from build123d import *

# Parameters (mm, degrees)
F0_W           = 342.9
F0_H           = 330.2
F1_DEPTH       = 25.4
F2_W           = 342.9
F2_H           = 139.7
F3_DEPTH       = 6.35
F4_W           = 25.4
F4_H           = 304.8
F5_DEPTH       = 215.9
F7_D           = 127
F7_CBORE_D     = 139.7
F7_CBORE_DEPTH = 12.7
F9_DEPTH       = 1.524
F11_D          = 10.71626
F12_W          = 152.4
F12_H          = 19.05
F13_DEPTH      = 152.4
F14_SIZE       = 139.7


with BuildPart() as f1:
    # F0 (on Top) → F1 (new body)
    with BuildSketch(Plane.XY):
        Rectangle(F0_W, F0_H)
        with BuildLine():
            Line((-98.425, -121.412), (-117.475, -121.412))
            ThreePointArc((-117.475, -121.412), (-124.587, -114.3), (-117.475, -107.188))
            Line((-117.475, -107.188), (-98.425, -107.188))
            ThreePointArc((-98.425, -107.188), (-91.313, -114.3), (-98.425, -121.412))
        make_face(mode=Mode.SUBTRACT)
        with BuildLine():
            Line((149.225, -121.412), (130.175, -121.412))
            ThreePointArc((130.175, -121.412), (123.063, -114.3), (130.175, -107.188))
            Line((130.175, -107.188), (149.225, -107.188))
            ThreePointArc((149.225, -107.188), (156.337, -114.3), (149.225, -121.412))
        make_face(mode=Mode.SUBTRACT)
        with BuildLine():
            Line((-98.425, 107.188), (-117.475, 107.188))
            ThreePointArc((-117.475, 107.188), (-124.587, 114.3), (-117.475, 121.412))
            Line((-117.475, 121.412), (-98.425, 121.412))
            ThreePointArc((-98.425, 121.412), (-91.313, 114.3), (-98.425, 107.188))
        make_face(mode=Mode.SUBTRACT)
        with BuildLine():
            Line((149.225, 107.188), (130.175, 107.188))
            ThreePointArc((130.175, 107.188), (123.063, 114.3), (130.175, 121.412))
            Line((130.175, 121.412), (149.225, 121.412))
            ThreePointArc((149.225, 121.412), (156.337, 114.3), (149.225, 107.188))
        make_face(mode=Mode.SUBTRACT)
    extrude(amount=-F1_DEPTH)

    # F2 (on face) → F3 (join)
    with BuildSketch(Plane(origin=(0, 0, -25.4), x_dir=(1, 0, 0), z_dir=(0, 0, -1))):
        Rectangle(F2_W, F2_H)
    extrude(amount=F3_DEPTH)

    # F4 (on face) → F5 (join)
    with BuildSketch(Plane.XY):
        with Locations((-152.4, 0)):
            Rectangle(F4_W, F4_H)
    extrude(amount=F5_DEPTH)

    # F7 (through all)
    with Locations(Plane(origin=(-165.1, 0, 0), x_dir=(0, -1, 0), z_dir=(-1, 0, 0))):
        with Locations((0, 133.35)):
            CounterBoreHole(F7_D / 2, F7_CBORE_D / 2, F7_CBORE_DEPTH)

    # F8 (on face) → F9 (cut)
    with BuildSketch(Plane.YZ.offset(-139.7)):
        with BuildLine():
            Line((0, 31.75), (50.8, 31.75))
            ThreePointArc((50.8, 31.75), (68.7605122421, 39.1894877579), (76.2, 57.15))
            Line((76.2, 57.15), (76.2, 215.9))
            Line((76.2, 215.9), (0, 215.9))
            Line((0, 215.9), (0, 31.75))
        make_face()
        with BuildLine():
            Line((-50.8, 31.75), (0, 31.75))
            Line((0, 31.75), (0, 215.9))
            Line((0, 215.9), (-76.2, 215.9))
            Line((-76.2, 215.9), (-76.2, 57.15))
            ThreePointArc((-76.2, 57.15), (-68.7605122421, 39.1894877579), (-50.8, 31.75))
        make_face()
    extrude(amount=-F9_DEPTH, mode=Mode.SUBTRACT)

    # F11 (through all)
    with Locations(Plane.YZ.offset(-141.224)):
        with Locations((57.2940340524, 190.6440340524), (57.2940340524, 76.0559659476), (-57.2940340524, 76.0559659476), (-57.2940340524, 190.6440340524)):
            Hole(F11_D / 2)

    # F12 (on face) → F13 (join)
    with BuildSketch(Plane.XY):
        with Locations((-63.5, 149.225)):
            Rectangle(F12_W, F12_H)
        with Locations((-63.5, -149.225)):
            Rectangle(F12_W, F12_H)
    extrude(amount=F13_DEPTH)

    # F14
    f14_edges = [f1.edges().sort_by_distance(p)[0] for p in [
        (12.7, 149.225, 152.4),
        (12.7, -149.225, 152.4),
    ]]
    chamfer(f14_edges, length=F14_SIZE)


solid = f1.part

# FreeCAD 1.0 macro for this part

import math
import FreeCAD as App
import Part
import Sketcher
Q = App.Units.Quantity


def edges_at(feature, points):
    """Names of the edges that pass closest to the given points."""
    edges = feature.Shape.Edges
    near = lambda p: min(range(len(edges)), key=lambda i: edges[i].distToShape(Part.Vertex(*p))[0])
    return sorted({f"Edge{near(p) + 1}" for p in points})


def add_polygon(sketch, points):
    """Adds a closed chain of lines whose ends are joined by coincident constraints."""
    first, n = sketch.GeometryCount, len(points)
    for a, b in zip(points, points[1:] + points[:1]):
        sketch.addGeometry(Part.LineSegment(App.Vector(*a, 0), App.Vector(*b, 0)), False)
    for i in range(n):
        sketch.addConstraint(Sketcher.Constraint("Coincident", first + i, 2, first + (i + 1) % n, 1))

doc = App.newDocument("Part")
body = doc.addObject("PartDesign::Body", "Body")

# Sketch on XY plane
sketch1 = body.newObject("Sketcher::SketchObject", "Sketch")
sketch1.AttachmentSupport = (doc.getObject("XY_Plane"), [""])
sketch1.MapMode = "FlatFace"
add_polygon(sketch1, [(-171, 165), (-171, -165), (171, -165), (171, 165)])  # lines 0-3
sketch1.addGeometry(Part.ArcOfCircle(Part.Circle(App.Vector(-98, -114, 0), App.Vector(0, 0, 1), 7), math.radians(-90), math.radians(90)), False)  # 4
sketch1.addGeometry(Part.LineSegment(App.Vector(-98, -121, 0), App.Vector(-117, -121, 0)), False)  # 5
sketch1.addGeometry(Part.ArcOfCircle(Part.Circle(App.Vector(-117, -114, 0), App.Vector(0, 0, 1), 7), math.radians(90), math.radians(270)), False)  # 6
sketch1.addGeometry(Part.LineSegment(App.Vector(-117, -107, 0), App.Vector(-98, -107, 0)), False)  # 7
sketch1.addGeometry(Part.ArcOfCircle(Part.Circle(App.Vector(149, -114, 0), App.Vector(0, 0, 1), 7), math.radians(-90), math.radians(90)), False)  # 8
sketch1.addGeometry(Part.LineSegment(App.Vector(149, -121, 0), App.Vector(130, -121, 0)), False)  # 9
sketch1.addGeometry(Part.ArcOfCircle(Part.Circle(App.Vector(130, -114, 0), App.Vector(0, 0, 1), 7), math.radians(90), math.radians(270)), False)  # 10
sketch1.addGeometry(Part.LineSegment(App.Vector(130, -107, 0), App.Vector(149, -107, 0)), False)  # 11
sketch1.addGeometry(Part.ArcOfCircle(Part.Circle(App.Vector(-98, 114, 0), App.Vector(0, 0, 1), 7), math.radians(-90), math.radians(90)), False)  # 12
sketch1.addGeometry(Part.LineSegment(App.Vector(-98, 107, 0), App.Vector(-117, 107, 0)), False)  # 13
sketch1.addGeometry(Part.ArcOfCircle(Part.Circle(App.Vector(-117, 114, 0), App.Vector(0, 0, 1), 7), math.radians(90), math.radians(270)), False)  # 14
sketch1.addGeometry(Part.LineSegment(App.Vector(-117, 121, 0), App.Vector(-98, 121, 0)), False)  # 15
sketch1.addGeometry(Part.ArcOfCircle(Part.Circle(App.Vector(149, 114, 0), App.Vector(0, 0, 1), 7), math.radians(-90), math.radians(90)), False)  # 16
sketch1.addGeometry(Part.LineSegment(App.Vector(149, 107, 0), App.Vector(130, 107, 0)), False)  # 17
sketch1.addGeometry(Part.ArcOfCircle(Part.Circle(App.Vector(130, 114, 0), App.Vector(0, 0, 1), 7), math.radians(90), math.radians(270)), False)  # 18
sketch1.addGeometry(Part.LineSegment(App.Vector(130, 121, 0), App.Vector(149, 121, 0)), False)  # 19
sketch1.addConstraint(Sketcher.Constraint("Tangent", 4, 1, 5, 1))
sketch1.addConstraint(Sketcher.Constraint("Tangent", 5, 2, 6, 2))
sketch1.addConstraint(Sketcher.Constraint("Tangent", 6, 1, 7, 1))
sketch1.addConstraint(Sketcher.Constraint("Tangent", 7, 2, 4, 2))
sketch1.addConstraint(Sketcher.Constraint("Tangent", 8, 1, 9, 1))
sketch1.addConstraint(Sketcher.Constraint("Tangent", 9, 2, 10, 2))
sketch1.addConstraint(Sketcher.Constraint("Tangent", 10, 1, 11, 1))
sketch1.addConstraint(Sketcher.Constraint("Tangent", 11, 2, 8, 2))
sketch1.addConstraint(Sketcher.Constraint("Tangent", 12, 1, 13, 1))
sketch1.addConstraint(Sketcher.Constraint("Tangent", 13, 2, 14, 2))
sketch1.addConstraint(Sketcher.Constraint("Tangent", 14, 1, 15, 1))
sketch1.addConstraint(Sketcher.Constraint("Tangent", 15, 2, 12, 2))
sketch1.addConstraint(Sketcher.Constraint("Tangent", 16, 1, 17, 1))
sketch1.addConstraint(Sketcher.Constraint("Tangent", 17, 2, 18, 2))
sketch1.addConstraint(Sketcher.Constraint("Tangent", 18, 1, 19, 1))
sketch1.addConstraint(Sketcher.Constraint("Tangent", 19, 2, 16, 2))
sketch1.addConstraint(Sketcher.Constraint("Vertical", 0))
sketch1.addConstraint(Sketcher.Constraint("Horizontal", 1))
sketch1.addConstraint(Sketcher.Constraint("Vertical", 2))
sketch1.addConstraint(Sketcher.Constraint("Horizontal", 3))
sketch1.addConstraint(Sketcher.Constraint("Horizontal", 5))
sketch1.addConstraint(Sketcher.Constraint("Horizontal", 7))
sketch1.addConstraint(Sketcher.Constraint("Horizontal", 9))
sketch1.addConstraint(Sketcher.Constraint("Horizontal", 11))
sketch1.addConstraint(Sketcher.Constraint("Horizontal", 13))
sketch1.addConstraint(Sketcher.Constraint("Horizontal", 15))
sketch1.addConstraint(Sketcher.Constraint("Horizontal", 17))
sketch1.addConstraint(Sketcher.Constraint("Horizontal", 19))
sketch1.addConstraint(Sketcher.Constraint("Equal", 6, 8))
sketch1.addConstraint(Sketcher.Constraint("Equal", 10, 12))
sketch1.addConstraint(Sketcher.Constraint("Equal", 14, 16))
sketch1.addConstraint(Sketcher.Constraint("Symmetric", 0, 2, 2, 2, -1, 1))
sketch1.addConstraint(Sketcher.Constraint("Symmetric", 4, 3, 12, 3, -1))
sketch1.addConstraint(Sketcher.Constraint("Symmetric", 8, 3, 16, 3, -1))
sketch1.addConstraint(Sketcher.Constraint("Horizontal", 6, 3, 8, 3))
sketch1.addConstraint(Sketcher.Constraint("Vertical", 6, 3, 14, 3))
sketch1.addConstraint(Sketcher.Constraint("Vertical", 10, 3, 18, 3))
sketch1.addConstraint(Sketcher.Constraint("Equal", 7, 9))
sketch1.addConstraint(Sketcher.Constraint("DistanceY", 0, 2, 0, 1, Q("13 in")))
sketch1.addConstraint(Sketcher.Constraint("Radius", 4, Q("0.28 in")))
sketch1.addConstraint(Sketcher.Constraint("DistanceX", 1, 1, 1, 2, Q("13.5 in")))
sketch1.addConstraint(Sketcher.Constraint("DistanceX", 4, 3, 10, 3, Q("9 in")))
sketch1.addConstraint(Sketcher.Constraint("DistanceY", 4, 3, 12, 3, Q("9 in")))
sketch1.addConstraint(Sketcher.Constraint("DistanceX", 5, 2, 5, 1, Q("0.75 in")))
sketch1.addConstraint(Sketcher.Constraint("DistanceX", 4, 3, -1, 1, Q("3.875 in")))
pad1 = body.newObject("PartDesign::Pad", "Pad")
pad1.Profile = sketch1
pad1.Length = Q("1 in")
pad1.Reversed = True

# Sketch on XY plane
sketch2 = body.newObject("Sketcher::SketchObject", "Sketch001")
sketch2.AttachmentSupport = (doc.getObject("XY_Plane"), [""])
sketch2.MapMode = "FlatFace"
sketch2.AttachmentOffset = App.Placement(App.Vector(0, 0, -1 * 25.4), App.Rotation())
add_polygon(sketch2, [(-171, -70), (-171, 70), (171, 70), (171, -70)])  # lines 0-3
sketch2.addConstraint(Sketcher.Constraint("Vertical", 0))
sketch2.addConstraint(Sketcher.Constraint("Horizontal", 1))
sketch2.addConstraint(Sketcher.Constraint("Vertical", 2))
sketch2.addConstraint(Sketcher.Constraint("Horizontal", 3))
sketch2.addConstraint(Sketcher.Constraint("Symmetric", 0, 2, 2, 2, -1, 1))
sketch2.addConstraint(Sketcher.Constraint("DistanceX", 1, 1, 1, 2, Q("13.5 in")))
sketch2.addConstraint(Sketcher.Constraint("DistanceY", 0, 1, 0, 2, Q("5.5 in")))
pad2 = body.newObject("PartDesign::Pad", "Pad001")
pad2.Profile = sketch2
pad2.Length = Q("0.25 in")
pad2.Reversed = True

# Sketch on XY plane
sketch3 = body.newObject("Sketcher::SketchObject", "Sketch002")
sketch3.AttachmentSupport = (doc.getObject("XY_Plane"), [""])
sketch3.MapMode = "FlatFace"
add_polygon(sketch3, [(-165, 152), (-165, -152), (-140, -152), (-140, 152)])  # lines 0-3
sketch3.addConstraint(Sketcher.Constraint("Vertical", 0))
sketch3.addConstraint(Sketcher.Constraint("Horizontal", 1))
sketch3.addConstraint(Sketcher.Constraint("Vertical", 2))
sketch3.addConstraint(Sketcher.Constraint("Horizontal", 3))
sketch3.addConstraint(Sketcher.Constraint("DistanceX", 1, 1, 1, 2, Q("1 in")))
sketch3.addConstraint(Sketcher.Constraint("DistanceY", 0, 2, 0, 1, Q("12 in")))
sketch3.addConstraint(Sketcher.Constraint("DistanceY", 0, 2, -1, 1, Q("6 in")))
sketch3.addConstraint(Sketcher.Constraint("DistanceX", 0, 2, -1, 1, Q("6.5 in")))
pad3 = body.newObject("PartDesign::Pad", "Pad002")
pad3.Profile = sketch3
pad3.Length = Q("8.5 in")

# Sketch on YZ plane
sketch4 = body.newObject("Sketcher::SketchObject", "Sketch003")
sketch4.AttachmentSupport = (doc.getObject("YZ_Plane"), [""])
sketch4.MapMode = "FlatFace"
sketch4.AttachmentOffset = App.Placement(App.Vector(0, 0, -6.5 * 25.4), App.Rotation())
sketch4.addGeometry(Part.Circle(App.Vector(0, 133, 0), App.Vector(0, 0, 1), 64), False)
sketch4.addConstraint(Sketcher.Constraint("PointOnObject", 0, 3, -2))
sketch4.addConstraint(Sketcher.Constraint("Diameter", 0, Q("5 in")))
sketch4.addConstraint(Sketcher.Constraint("DistanceY", -1, 1, 0, 3, Q("5.25 in")))
doc.recompute()
hole = body.newObject("PartDesign::Hole", "Hole")
hole.Profile = sketch4
hole.ThreadType = "None"
hole.Diameter = Q("5 in")
hole.DepthType = "ThroughAll"
hole.HoleCutType = "Counterbore"
hole.HoleCutDiameter = Q("5.5 in")
hole.HoleCutDepth = Q("0.5 in")
hole.Reversed = True

# Sketch on YZ plane
sketch5 = body.newObject("Sketcher::SketchObject", "Sketch004")
sketch5.AttachmentSupport = (doc.getObject("YZ_Plane"), [""])
sketch5.MapMode = "FlatFace"
sketch5.AttachmentOffset = App.Placement(App.Vector(0, 0, -5.5 * 25.4), App.Rotation())
sketch5.addGeometry(Part.ArcOfCircle(Part.Circle(App.Vector(51, 57, 0), App.Vector(0, 0, 1), 25), math.radians(-90), math.radians(0)), False)
sketch5.addGeometry(Part.LineSegment(App.Vector(76, 57, 0), App.Vector(76, 216, 0)), False)
sketch5.addGeometry(Part.LineSegment(App.Vector(76, 216, 0), App.Vector(-76, 216, 0)), False)
sketch5.addGeometry(Part.LineSegment(App.Vector(-76, 216, 0), App.Vector(-76, 57, 0)), False)
sketch5.addGeometry(Part.ArcOfCircle(Part.Circle(App.Vector(-51, 57, 0), App.Vector(0, 0, 1), 25), math.radians(180), math.radians(270)), False)
sketch5.addGeometry(Part.LineSegment(App.Vector(-51, 32, 0), App.Vector(51, 32, 0)), False)
sketch5.addConstraint(Sketcher.Constraint("Tangent", 0, 2, 1, 1))
sketch5.addConstraint(Sketcher.Constraint("Coincident", 1, 2, 2, 1))
sketch5.addConstraint(Sketcher.Constraint("Coincident", 2, 2, 3, 1))
sketch5.addConstraint(Sketcher.Constraint("Tangent", 3, 2, 4, 1))
sketch5.addConstraint(Sketcher.Constraint("Tangent", 4, 2, 5, 1))
sketch5.addConstraint(Sketcher.Constraint("Tangent", 5, 2, 0, 1))
sketch5.addConstraint(Sketcher.Constraint("Vertical", 1))
sketch5.addConstraint(Sketcher.Constraint("Horizontal", 2))
sketch5.addConstraint(Sketcher.Constraint("Vertical", 3))
sketch5.addConstraint(Sketcher.Constraint("Horizontal", 5))
sketch5.addConstraint(Sketcher.Constraint("Equal", 0, 4))
sketch5.addConstraint(Sketcher.Constraint("Radius", 0, Q("1 in")))
sketch5.addConstraint(Sketcher.Constraint("DistanceX", 2, 2, 2, 1, Q("6 in")))
sketch5.addConstraint(Sketcher.Constraint("DistanceX", -1, 1, 0, 3, Q("2 in")))
sketch5.addConstraint(Sketcher.Constraint("DistanceY", 1, 1, 1, 2, Q("6.25 in")))
sketch5.addConstraint(Sketcher.Constraint("DistanceY", -1, 1, 1, 2, Q("8.5 in")))
pocket1 = body.newObject("PartDesign::Pocket", "Pocket")
pocket1.Profile = sketch5
pocket1.Length = Q("0.06 in")

# Sketch on YZ plane
sketch6 = body.newObject("Sketcher::SketchObject", "Sketch005")
sketch6.AttachmentSupport = (doc.getObject("YZ_Plane"), [""])
sketch6.MapMode = "FlatFace"
sketch6.AttachmentOffset = App.Placement(App.Vector(0, 0, -5.56 * 25.4), App.Rotation())
sketch6.addGeometry(Part.Circle(App.Vector(57, 191, 0), App.Vector(0, 0, 1), 5), False)
sketch6.addGeometry(Part.Circle(App.Vector(57, 76, 0), App.Vector(0, 0, 1), 5), False)
sketch6.addGeometry(Part.Circle(App.Vector(-57, 76, 0), App.Vector(0, 0, 1), 5), False)
sketch6.addGeometry(Part.Circle(App.Vector(-57, 191, 0), App.Vector(0, 0, 1), 5), False)
sketch6.addConstraint(Sketcher.Constraint("Equal", 0, 1))
sketch6.addConstraint(Sketcher.Constraint("Equal", 1, 2))
sketch6.addConstraint(Sketcher.Constraint("Equal", 2, 3))
sketch6.addConstraint(Sketcher.Constraint("Symmetric", 1, 3, 2, 3, -2))
sketch6.addConstraint(Sketcher.Constraint("Symmetric", 0, 3, 3, 3, -2))
sketch6.addConstraint(Sketcher.Constraint("Vertical", 0, 3, 1, 3))
sketch6.addConstraint(Sketcher.Constraint("Diameter", 0, Q("0.4219 in")))
sketch6.addConstraint(Sketcher.Constraint("DistanceY", 1, 3, 0, 3, Q("114.588068 mm")))
sketch6.addConstraint(Sketcher.Constraint("DistanceX", 2, 3, 1, 3, Q("114.588068 mm")))
sketch6.addConstraint(Sketcher.Constraint("DistanceY", -1, 1, 0, 3, Q("190.644034 mm")))
doc.recompute()
hole2 = body.newObject("PartDesign::Hole", "Hole001")
hole2.Profile = sketch6
hole2.ThreadType = "None"
hole2.Diameter = Q("0.4219 in")
hole2.DepthType = "ThroughAll"

# Sketch on XY plane
sketch7 = body.newObject("Sketcher::SketchObject", "Sketch006")
sketch7.AttachmentSupport = (doc.getObject("XY_Plane"), [""])
sketch7.MapMode = "FlatFace"
add_polygon(sketch7, [(-140, 159), (-140, 140), (13, 140), (13, 159)])  # lines 0-3
add_polygon(sketch7, [(-140, -140), (-140, -159), (13, -159), (13, -140)])  # lines 4-7
sketch7.addConstraint(Sketcher.Constraint("Vertical", 0))
sketch7.addConstraint(Sketcher.Constraint("Horizontal", 1))
sketch7.addConstraint(Sketcher.Constraint("Vertical", 2))
sketch7.addConstraint(Sketcher.Constraint("Horizontal", 3))
sketch7.addConstraint(Sketcher.Constraint("Vertical", 4))
sketch7.addConstraint(Sketcher.Constraint("Horizontal", 5))
sketch7.addConstraint(Sketcher.Constraint("Vertical", 6))
sketch7.addConstraint(Sketcher.Constraint("Horizontal", 7))
sketch7.addConstraint(Sketcher.Constraint("Symmetric", 3, 2, 4, 2, -1))
sketch7.addConstraint(Sketcher.Constraint("Symmetric", 1, 2, 6, 2, -1))
sketch7.addConstraint(Sketcher.Constraint("DistanceX", 1, 1, 1, 2, Q("6 in")))
sketch7.addConstraint(Sketcher.Constraint("DistanceY", 6, 2, 1, 2, Q("11 in")))
sketch7.addConstraint(Sketcher.Constraint("DistanceY", 0, 2, 0, 1, Q("0.75 in")))
sketch7.addConstraint(Sketcher.Constraint("DistanceX", 0, 2, -1, 1, Q("5.5 in")))
pad4 = body.newObject("PartDesign::Pad", "Pad003")
pad4.Profile = sketch7
pad4.Length = Q("6 in")
doc.recompute()

chamfer = body.newObject("PartDesign::Chamfer", "Chamfer")
chamfer.Base = (pad4, edges_at(pad4, [(12.7, 149.225, 152.4), (12.7, -149.225, 152.4)]))
chamfer.Size = Q("5.5 in")

doc.recompute()
